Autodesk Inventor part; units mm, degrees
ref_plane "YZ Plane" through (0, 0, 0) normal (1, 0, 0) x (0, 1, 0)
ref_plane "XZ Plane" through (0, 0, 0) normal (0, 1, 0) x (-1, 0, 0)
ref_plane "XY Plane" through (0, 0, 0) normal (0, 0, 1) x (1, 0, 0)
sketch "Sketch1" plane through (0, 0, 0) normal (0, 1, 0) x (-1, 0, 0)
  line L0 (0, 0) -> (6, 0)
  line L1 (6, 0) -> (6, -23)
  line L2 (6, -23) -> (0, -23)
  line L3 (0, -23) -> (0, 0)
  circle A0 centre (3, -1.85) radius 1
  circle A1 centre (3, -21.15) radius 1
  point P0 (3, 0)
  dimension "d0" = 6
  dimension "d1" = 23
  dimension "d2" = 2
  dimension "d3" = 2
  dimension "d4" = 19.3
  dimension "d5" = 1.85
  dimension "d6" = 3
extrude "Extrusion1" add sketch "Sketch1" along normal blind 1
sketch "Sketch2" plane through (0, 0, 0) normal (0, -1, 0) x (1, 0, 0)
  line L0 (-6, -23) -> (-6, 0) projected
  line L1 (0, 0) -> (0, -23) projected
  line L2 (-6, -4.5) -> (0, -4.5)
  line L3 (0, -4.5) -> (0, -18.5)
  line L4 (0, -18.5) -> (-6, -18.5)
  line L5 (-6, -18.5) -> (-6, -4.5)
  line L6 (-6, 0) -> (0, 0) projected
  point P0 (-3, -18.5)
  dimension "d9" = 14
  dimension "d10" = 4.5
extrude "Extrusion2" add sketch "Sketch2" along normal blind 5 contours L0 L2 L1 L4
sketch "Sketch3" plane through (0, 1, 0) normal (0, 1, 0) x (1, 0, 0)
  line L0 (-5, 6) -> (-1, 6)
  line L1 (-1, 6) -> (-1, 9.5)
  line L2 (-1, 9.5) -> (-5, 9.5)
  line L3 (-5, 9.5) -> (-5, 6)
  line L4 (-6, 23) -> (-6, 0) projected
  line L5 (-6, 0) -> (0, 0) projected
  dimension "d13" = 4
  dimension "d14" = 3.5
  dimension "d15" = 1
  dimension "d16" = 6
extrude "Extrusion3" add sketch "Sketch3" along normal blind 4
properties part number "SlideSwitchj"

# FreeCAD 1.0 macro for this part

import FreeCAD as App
import Part
import Sketcher

V = App.Vector
Q = App.Units.Quantity


def add_polygon(sketch, points):
    """Adds a closed chain of lines whose ends are joined by coincident constraints."""
    first, n = sketch.GeometryCount, len(points)
    for a, b in zip(points, points[1:] + points[:1]):
        sketch.addGeometry(Part.LineSegment(App.Vector(*a, 0), App.Vector(*b, 0)), False)
    for i in range(n):
        sketch.addConstraint(Sketcher.Constraint("Coincident", first + i, 2, first + (i + 1) % n, 1))

doc = App.newDocument("Part")
body = doc.addObject("PartDesign::Body", "Body")

# Sketch on XZ plane
sketch1 = doc.addObject("Sketcher::SketchObject", "Sketch")
body.addObject(sketch1)
sketch1.AttachmentSupport = (doc.XZ_Plane, [""])
sketch1.MapMode = "FlatFace"
add_polygon(sketch1, [(-6, 0), (0, 0), (0, -23), (-6, -23)])  # lines 0-3
sketch1.addGeometry(Part.Circle(V(-3, -21.15, 0), V(0, 0, 1), 1), False)  # 4
sketch1.addGeometry(Part.Circle(V(-3, -1.85, 0), V(0, 0, 1), 1), False)  # 5
sketch1.addConstraint([
    Sketcher.Constraint("Horizontal", 0),
    Sketcher.Constraint("Vertical", 1),
    Sketcher.Constraint("Horizontal", 2),
    Sketcher.Constraint("Vertical", 3),
    Sketcher.Constraint("Coincident", 0, 2, -1, 1),
    Sketcher.Constraint("Equal", 4, 5),
    Sketcher.Constraint("Vertical", 4, 3, 5, 3),
    Sketcher.Constraint("Diameter", 4, Q("2 mm")),
    Sketcher.Constraint("DistanceX", 0, 1, 0, 2, Q("6 mm")),
    Sketcher.Constraint("DistanceY", 1, 2, 1, 1, Q("23 mm")),
    Sketcher.Constraint("DistanceX", 4, 3, -1, 1, Q("3 mm")),
    Sketcher.Constraint("DistanceY", 4, 3, 5, 3, Q("19.3 mm")),
    Sketcher.Constraint("DistanceY", 5, 3, -1, 1, Q("1.85 mm")),
])
pad1 = doc.addObject("PartDesign::Pad", "Pad")
body.addObject(pad1)
pad1.Profile = sketch1
pad1.Length = 1
pad1.Reversed = True

# Sketch on XZ plane
sketch2 = doc.addObject("Sketcher::SketchObject", "Sketch001")
body.addObject(sketch2)
sketch2.AttachmentSupport = (doc.XZ_Plane, [""])
sketch2.MapMode = "FlatFace"
add_polygon(sketch2, [(-6, -4.5), (-6, -18.5), (0, -18.5), (0, -4.5)])  # lines 0-3
sketch2.addConstraint([
    Sketcher.Constraint("Vertical", 0),
    Sketcher.Constraint("Horizontal", 1),
    Sketcher.Constraint("Vertical", 2),
    Sketcher.Constraint("Horizontal", 3),
    Sketcher.Constraint("PointOnObject", 1, 2, -2),
    Sketcher.Constraint("DistanceY", 0, 2, 0, 1, Q("14 mm")),
    Sketcher.Constraint("DistanceY", 2, 2, -1, 1, Q("4.5 mm")),
    Sketcher.Constraint("DistanceX", 1, 1, 1, 2, Q("6 mm")),
])
pad2 = doc.addObject("PartDesign::Pad", "Pad001")
body.addObject(pad2)
pad2.Profile = sketch2
pad2.Length = 5

# Sketch on XZ plane
sketch3 = doc.addObject("Sketcher::SketchObject", "Sketch002")
body.addObject(sketch3)
sketch3.AttachmentSupport = (doc.XZ_Plane, [""])
sketch3.MapMode = "FlatFace"
sketch3.AttachmentOffset = App.Placement(V(0, 0, -1), App.Rotation())
add_polygon(sketch3, [(-5, -9.5), (-5, -6), (-1, -6), (-1, -9.5)])  # lines 0-3
sketch3.addConstraint([
    Sketcher.Constraint("Vertical", 0),
    Sketcher.Constraint("Horizontal", 1),
    Sketcher.Constraint("Vertical", 2),
    Sketcher.Constraint("Horizontal", 3),
    Sketcher.Constraint("DistanceX", 1, 1, 1, 2, Q("4 mm")),
    Sketcher.Constraint("DistanceY", 0, 1, 0, 2, Q("3.5 mm")),
    Sketcher.Constraint("DistanceY", 0, 2, -1, 1, Q("6 mm")),
    Sketcher.Constraint("DistanceX", 1, 2, -1, 1, Q("1 mm")),
])
pad3 = doc.addObject("PartDesign::Pad", "Pad002")
body.addObject(pad3)
pad3.Profile = sketch3
pad3.Length = 4
pad3.Reversed = True

doc.recompute()
